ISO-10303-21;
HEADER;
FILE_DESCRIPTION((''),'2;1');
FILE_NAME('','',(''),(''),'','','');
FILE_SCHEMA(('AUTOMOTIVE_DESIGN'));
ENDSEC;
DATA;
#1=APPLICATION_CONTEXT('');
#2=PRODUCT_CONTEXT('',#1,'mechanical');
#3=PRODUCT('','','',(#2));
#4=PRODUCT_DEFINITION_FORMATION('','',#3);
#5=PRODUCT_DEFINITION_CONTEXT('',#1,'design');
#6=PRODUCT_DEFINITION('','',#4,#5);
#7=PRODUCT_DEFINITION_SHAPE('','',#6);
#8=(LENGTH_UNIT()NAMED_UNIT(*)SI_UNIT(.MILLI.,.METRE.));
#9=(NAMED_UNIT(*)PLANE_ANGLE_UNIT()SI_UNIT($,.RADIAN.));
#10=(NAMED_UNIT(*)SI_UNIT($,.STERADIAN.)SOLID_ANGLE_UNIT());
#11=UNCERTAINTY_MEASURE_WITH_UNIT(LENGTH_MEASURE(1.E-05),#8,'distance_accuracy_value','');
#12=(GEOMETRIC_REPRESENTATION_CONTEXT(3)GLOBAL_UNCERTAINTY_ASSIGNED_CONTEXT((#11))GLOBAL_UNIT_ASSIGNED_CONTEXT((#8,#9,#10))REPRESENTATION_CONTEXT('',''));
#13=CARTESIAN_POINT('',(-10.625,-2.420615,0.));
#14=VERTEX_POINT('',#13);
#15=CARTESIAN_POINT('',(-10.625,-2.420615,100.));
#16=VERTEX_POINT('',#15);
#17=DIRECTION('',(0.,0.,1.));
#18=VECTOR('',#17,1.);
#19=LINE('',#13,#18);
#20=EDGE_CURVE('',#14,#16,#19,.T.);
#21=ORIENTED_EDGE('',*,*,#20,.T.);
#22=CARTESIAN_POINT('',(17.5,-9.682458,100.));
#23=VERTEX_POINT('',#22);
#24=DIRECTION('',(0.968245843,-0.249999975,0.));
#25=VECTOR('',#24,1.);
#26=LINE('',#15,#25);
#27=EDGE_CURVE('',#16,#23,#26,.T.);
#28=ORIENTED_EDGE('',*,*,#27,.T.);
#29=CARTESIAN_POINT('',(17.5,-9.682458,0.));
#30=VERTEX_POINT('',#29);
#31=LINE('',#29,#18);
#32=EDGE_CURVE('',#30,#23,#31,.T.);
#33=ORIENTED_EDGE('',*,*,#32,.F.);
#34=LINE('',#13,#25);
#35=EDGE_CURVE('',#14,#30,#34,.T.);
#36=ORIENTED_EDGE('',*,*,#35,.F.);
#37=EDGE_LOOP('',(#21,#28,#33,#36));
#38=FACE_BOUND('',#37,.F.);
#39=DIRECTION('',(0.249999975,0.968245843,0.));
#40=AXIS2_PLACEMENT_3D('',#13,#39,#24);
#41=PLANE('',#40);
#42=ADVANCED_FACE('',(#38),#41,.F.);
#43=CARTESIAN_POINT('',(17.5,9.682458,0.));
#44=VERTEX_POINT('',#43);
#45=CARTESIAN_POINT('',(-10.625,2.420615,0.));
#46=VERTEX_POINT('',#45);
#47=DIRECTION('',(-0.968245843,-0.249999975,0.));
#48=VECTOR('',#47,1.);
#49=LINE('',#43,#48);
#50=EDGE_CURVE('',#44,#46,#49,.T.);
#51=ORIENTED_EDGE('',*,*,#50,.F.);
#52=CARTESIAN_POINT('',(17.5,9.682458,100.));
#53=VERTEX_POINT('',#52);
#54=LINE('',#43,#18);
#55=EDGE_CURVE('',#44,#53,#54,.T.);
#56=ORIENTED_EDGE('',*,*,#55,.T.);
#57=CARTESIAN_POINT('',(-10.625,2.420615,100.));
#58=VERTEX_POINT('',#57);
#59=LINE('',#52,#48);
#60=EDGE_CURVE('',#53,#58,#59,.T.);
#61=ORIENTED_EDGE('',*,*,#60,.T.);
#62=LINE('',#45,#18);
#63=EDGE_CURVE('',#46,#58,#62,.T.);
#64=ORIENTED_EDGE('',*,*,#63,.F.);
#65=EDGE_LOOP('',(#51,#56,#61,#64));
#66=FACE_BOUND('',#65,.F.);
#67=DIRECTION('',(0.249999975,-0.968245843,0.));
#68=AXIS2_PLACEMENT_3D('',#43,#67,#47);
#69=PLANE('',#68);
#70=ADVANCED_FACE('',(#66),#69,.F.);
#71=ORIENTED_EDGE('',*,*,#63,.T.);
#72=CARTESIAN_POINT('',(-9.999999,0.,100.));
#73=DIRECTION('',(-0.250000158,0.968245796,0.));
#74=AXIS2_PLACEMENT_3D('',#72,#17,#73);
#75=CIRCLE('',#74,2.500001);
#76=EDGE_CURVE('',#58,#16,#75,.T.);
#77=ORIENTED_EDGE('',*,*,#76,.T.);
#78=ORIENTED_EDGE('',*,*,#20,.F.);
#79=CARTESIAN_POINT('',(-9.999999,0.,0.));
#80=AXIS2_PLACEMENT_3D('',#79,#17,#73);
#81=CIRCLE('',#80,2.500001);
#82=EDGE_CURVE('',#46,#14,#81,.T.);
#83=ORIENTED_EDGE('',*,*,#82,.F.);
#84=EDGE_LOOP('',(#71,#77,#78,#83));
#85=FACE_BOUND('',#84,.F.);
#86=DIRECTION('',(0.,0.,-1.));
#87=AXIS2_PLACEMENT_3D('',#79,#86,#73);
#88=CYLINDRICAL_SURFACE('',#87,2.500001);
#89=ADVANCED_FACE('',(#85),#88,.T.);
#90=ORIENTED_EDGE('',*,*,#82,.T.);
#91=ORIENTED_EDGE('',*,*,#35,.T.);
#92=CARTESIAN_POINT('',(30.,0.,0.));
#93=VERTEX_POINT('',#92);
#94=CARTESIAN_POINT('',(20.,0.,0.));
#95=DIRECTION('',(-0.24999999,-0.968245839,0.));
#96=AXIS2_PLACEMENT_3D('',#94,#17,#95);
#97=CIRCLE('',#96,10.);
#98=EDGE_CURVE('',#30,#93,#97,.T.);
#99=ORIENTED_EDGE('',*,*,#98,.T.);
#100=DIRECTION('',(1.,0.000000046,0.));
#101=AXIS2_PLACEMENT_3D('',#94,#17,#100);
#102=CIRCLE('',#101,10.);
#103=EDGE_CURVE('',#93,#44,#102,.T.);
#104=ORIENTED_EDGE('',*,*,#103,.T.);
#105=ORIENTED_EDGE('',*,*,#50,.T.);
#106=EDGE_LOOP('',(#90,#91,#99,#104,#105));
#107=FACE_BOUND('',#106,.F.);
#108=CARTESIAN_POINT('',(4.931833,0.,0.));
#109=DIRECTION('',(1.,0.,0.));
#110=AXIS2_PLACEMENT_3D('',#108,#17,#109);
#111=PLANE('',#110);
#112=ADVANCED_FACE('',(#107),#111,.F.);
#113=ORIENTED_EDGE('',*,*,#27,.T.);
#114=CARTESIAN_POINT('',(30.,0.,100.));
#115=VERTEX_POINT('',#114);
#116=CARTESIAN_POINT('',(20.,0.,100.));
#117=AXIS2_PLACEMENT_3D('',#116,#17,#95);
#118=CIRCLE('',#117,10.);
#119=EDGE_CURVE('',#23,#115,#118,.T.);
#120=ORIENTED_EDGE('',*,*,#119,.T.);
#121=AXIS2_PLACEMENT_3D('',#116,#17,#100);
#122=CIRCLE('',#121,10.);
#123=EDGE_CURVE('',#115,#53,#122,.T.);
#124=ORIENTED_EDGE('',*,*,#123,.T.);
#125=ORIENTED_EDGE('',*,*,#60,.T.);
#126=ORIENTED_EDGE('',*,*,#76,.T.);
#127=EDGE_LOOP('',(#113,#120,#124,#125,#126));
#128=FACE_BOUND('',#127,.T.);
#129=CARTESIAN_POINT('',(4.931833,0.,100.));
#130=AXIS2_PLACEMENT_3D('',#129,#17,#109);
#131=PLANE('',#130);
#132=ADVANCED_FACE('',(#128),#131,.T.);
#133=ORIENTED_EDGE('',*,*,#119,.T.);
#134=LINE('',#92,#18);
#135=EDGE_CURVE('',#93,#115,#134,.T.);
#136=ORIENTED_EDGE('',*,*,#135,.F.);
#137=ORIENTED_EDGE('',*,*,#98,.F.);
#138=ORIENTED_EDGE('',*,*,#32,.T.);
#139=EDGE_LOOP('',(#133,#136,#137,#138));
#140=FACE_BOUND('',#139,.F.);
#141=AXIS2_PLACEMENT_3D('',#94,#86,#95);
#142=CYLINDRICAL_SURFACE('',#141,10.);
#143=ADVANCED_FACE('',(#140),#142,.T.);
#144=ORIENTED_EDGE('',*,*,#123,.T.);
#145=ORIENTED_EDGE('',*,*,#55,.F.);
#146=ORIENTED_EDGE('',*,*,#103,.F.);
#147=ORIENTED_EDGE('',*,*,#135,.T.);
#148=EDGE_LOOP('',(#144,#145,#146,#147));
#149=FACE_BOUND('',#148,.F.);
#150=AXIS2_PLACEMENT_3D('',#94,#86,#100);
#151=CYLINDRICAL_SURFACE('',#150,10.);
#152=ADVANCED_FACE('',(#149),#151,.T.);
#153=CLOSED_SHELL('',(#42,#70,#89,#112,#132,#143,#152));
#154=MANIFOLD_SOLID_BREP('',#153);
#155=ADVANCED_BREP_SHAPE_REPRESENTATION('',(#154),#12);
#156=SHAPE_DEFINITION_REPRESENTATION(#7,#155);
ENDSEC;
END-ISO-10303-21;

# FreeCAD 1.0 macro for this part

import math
import FreeCAD as App
import Part
import Sketcher
from FreeCAD import Vector

doc = App.newDocument("Part")
body = doc.addObject("PartDesign::Body", "Body")

sketch1 = body.newObject("Sketcher::SketchObject", "Sketch")
sketch1.AttachmentSupport = (doc.getObject("XY_Plane"), [""])
sketch1.MapMode = "FlatFace"
sketch1.addGeometry([
    Part.LineSegment(Vector(-10.6, -2.4, 0), Vector(17.5, -9.7, 0)),
    Part.ArcOfCircle(Part.Circle(Vector(20, 0, 0), Vector(0, 0, 1), 10), math.radians(-104), math.radians(0)),
    Part.ArcOfCircle(Part.Circle(Vector(20, 0, 0), Vector(0, 0, 1), 10), math.radians(0), math.radians(104)),
    Part.LineSegment(Vector(17.5, 9.7, 0), Vector(-10.6, 2.4, 0)),
    Part.ArcOfCircle(Part.Circle(Vector(-10, 0, 0), Vector(0, 0, 1), 2.5), math.radians(104), math.radians(256)),
], False)
sketch1.addConstraint([
    Sketcher.Constraint("Tangent", 0, 2, 1, 1),
    Sketcher.Constraint("Tangent", 1, 2, 2, 1),
    Sketcher.Constraint("Tangent", 2, 2, 3, 1),
    Sketcher.Constraint("Tangent", 3, 2, 4, 1),
    Sketcher.Constraint("Tangent", 4, 2, 0, 1),
    Sketcher.Constraint("Equal", 1, 2),
    Sketcher.Constraint("Symmetric", 0, 2, 2, 2, -1),
    Sketcher.Constraint("PointOnObject", 1, 2, -1),
    Sketcher.Constraint("Radius", 1, 10.0),
    Sketcher.Constraint("Radius", 4, 2.500001),
    Sketcher.Constraint("DistanceX", -1, 1, 1, 3, 20.0),
    Sketcher.Constraint("DistanceX", 4, 3, -1, 1, 9.999999),
])
pad1 = body.newObject("PartDesign::Pad", "Pad")
pad1.Profile = sketch1
pad1.Length = 100

doc.recompute()
